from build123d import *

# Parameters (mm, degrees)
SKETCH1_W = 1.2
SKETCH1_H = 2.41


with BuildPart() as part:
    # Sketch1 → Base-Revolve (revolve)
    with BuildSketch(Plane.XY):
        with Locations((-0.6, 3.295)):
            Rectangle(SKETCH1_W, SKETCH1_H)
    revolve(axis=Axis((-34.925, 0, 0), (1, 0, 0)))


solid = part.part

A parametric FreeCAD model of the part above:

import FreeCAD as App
import Part
import Sketcher

V = App.Vector
Q = App.Units.Quantity

doc = App.newDocument("Part")
body = doc.addObject("PartDesign::Body", "Body")

sketch1 = doc.addObject("Sketcher::SketchObject", "Sketch")
body.addObject(sketch1)
sketch1.AttachmentSupport = (doc.XY_Plane, [""])
sketch1.MapMode = "FlatFace"
sketch1.addGeometry([
    Part.LineSegment(V(-1.2, 4.5, 0), V(-1.2, 2.1, 0)),
    Part.LineSegment(V(-1.2, 2.1, 0), V(0, 2.1, 0)),
    Part.LineSegment(V(0, 2.1, 0), V(0, 4.5, 0)),
    Part.LineSegment(V(0, 4.5, 0), V(-1.2, 4.5, 0)),
], False)
sketch1.addConstraint([
    Sketcher.Constraint("Coincident", 0, 2, 1, 1),
    Sketcher.Constraint("Coincident", 1, 2, 2, 1),
    Sketcher.Constraint("Coincident", 2, 2, 3, 1),
    Sketcher.Constraint("Coincident", 3, 2, 0, 1),
    Sketcher.Constraint("Vertical", 0),
    Sketcher.Constraint("Horizontal", 1),
    Sketcher.Constraint("Vertical", 2),
    Sketcher.Constraint("Horizontal", 3),
    Sketcher.Constraint("PointOnObject", 1, 2, -2),
    Sketcher.Constraint("DistanceX", 1, 1, 1, 2, Q("1.2 mm")),
    Sketcher.Constraint("DistanceY", 0, 2, 0, 1, Q("2.41 mm")),
    Sketcher.Constraint("DistanceY", -1, 1, 2, 2, Q("4.5 mm")),
])
revolution = doc.addObject("PartDesign::Revolution", "Revolution")
body.addObject(revolution)
revolution.Profile = sketch1
revolution.ReferenceAxis = (sketch1, ["H_Axis"])
revolution.Angle = 360

doc.recompute()
